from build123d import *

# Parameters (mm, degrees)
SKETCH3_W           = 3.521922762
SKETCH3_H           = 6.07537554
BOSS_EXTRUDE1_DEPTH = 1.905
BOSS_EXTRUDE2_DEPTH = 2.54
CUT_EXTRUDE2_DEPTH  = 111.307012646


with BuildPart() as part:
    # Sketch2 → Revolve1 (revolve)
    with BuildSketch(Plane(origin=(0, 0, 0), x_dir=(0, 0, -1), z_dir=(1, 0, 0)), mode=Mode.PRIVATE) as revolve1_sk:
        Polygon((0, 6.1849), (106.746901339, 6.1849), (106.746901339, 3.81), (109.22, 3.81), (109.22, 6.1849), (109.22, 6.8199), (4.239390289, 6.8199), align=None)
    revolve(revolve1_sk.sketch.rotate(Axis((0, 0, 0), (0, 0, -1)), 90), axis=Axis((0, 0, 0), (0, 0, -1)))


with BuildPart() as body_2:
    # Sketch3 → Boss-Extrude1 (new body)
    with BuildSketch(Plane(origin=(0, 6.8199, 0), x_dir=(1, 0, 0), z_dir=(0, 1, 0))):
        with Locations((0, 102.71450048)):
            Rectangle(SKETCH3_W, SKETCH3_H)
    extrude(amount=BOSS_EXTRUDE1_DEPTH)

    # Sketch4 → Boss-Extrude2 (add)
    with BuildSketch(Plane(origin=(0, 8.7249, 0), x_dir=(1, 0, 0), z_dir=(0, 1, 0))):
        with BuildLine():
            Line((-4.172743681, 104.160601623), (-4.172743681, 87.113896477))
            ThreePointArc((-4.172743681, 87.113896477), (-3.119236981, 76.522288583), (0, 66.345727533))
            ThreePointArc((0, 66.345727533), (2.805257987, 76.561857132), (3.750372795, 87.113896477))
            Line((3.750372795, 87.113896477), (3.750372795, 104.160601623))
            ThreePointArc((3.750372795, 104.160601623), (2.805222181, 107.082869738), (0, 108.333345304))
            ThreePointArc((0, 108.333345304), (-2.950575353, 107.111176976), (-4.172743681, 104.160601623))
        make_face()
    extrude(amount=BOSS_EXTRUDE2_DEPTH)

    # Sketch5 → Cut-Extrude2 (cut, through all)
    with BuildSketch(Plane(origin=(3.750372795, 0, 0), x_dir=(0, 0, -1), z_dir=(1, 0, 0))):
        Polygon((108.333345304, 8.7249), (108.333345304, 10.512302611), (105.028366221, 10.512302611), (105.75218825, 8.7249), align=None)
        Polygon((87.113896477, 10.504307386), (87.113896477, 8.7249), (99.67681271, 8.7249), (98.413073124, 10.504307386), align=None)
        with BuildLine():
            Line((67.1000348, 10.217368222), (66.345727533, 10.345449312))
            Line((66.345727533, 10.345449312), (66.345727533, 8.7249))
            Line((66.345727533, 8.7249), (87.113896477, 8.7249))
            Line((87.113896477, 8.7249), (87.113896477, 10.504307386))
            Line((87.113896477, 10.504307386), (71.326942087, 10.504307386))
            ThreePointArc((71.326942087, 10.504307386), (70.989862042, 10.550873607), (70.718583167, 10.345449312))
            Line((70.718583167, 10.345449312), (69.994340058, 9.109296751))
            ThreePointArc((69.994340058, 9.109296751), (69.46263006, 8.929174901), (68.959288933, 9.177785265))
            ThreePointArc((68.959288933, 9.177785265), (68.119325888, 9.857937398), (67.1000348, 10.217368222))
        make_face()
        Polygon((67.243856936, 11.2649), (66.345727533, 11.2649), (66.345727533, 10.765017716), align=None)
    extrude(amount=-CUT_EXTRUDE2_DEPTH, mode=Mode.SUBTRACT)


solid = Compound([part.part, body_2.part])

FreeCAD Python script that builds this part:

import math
import FreeCAD as App
import Part
import Sketcher
from FreeCAD import Vector
Q = App.Units.Quantity

doc = App.newDocument("Part")
body = doc.addObject("PartDesign::Body", "Body")

sketch1 = body.newObject("Sketcher::SketchObject", "Sketch")
sketch1.AttachmentSupport = (doc.getObject("YZ_Plane"), [""])
sketch1.MapMode = "FlatFace"
sketch1.addGeometry([
    Part.LineSegment(Vector(6.2, 0, 0), Vector(6.2, -106.7, 0)),
    Part.LineSegment(Vector(6.2, -106.7, 0), Vector(3.8, -106.7, 0)),
    Part.LineSegment(Vector(3.8, -106.7, 0), Vector(3.8, -109.2, 0)),
    Part.LineSegment(Vector(3.8, -109.2, 0), Vector(6.8, -109.2, 0)),
    Part.LineSegment(Vector(6.8, -109.2, 0), Vector(6.8, -4.2, 0)),
    Part.LineSegment(Vector(6.8, -4.2, 0), Vector(6.2, 0, 0)),
], False)
sketch1.addConstraint([
    Sketcher.Constraint("Coincident", 0, 2, 1, 1),
    Sketcher.Constraint("Coincident", 1, 2, 2, 1),
    Sketcher.Constraint("Coincident", 2, 2, 3, 1),
    Sketcher.Constraint("Coincident", 3, 2, 4, 1),
    Sketcher.Constraint("Coincident", 4, 2, 5, 1),
    Sketcher.Constraint("Coincident", 5, 2, 0, 1),
    Sketcher.Constraint("Vertical", 0),
    Sketcher.Constraint("Horizontal", 1),
    Sketcher.Constraint("Vertical", 2),
    Sketcher.Constraint("Horizontal", 3),
    Sketcher.Constraint("Vertical", 4),
    Sketcher.Constraint("PointOnObject", 5, 2, -1),
    Sketcher.Constraint("DistanceY", 2, 2, -1, 1, Q("4.3 in")),
    Sketcher.Constraint("DistanceX", -1, 1, 1, 2, Q("0.15 in")),
    Sketcher.Constraint("DistanceX", 1, 2, 1, 1, Q("0.0935 in")),
    Sketcher.Constraint("DistanceX", 3, 1, 3, 2, Q("0.1185 in")),
    Sketcher.Constraint("DistanceY", 0, 2, 0, 1, 106.746901),
    Sketcher.Constraint("DistanceY", 4, 1, 4, 2, 104.98061),
])
revolution = body.newObject("PartDesign::Revolution", "Revolution")
revolution.Profile = sketch1
revolution.ReferenceAxis = (sketch1, ["V_Axis"])
revolution.Angle = 360
body2 = doc.addObject("PartDesign::Body", "Body001")

sketch2 = body2.newObject("Sketcher::SketchObject", "Sketch001")
sketch2.AttachmentSupport = (doc.getObject("XZ_Plane001"), [""])
sketch2.MapMode = "FlatFace"
sketch2.AttachmentOffset = App.Placement(Vector(0, 0, -0.2685 * 25.4), App.Rotation())
sketch2.addGeometry([
    Part.LineSegment(Vector(-1.8, -105.8, 0), Vector(-1.8, -99.7, 0)),
    Part.LineSegment(Vector(-1.8, -99.7, 0), Vector(1.8, -99.7, 0)),
    Part.LineSegment(Vector(1.8, -99.7, 0), Vector(1.8, -105.8, 0)),
    Part.LineSegment(Vector(1.8, -105.8, 0), Vector(-1.8, -105.8, 0)),
], False)
sketch2.addConstraint([
    Sketcher.Constraint("Coincident", 0, 2, 1, 1),
    Sketcher.Constraint("Coincident", 1, 2, 2, 1),
    Sketcher.Constraint("Coincident", 2, 2, 3, 1),
    Sketcher.Constraint("Coincident", 3, 2, 0, 1),
    Sketcher.Constraint("Vertical", 0),
    Sketcher.Constraint("Horizontal", 1),
    Sketcher.Constraint("Vertical", 2),
    Sketcher.Constraint("Horizontal", 3),
    Sketcher.Constraint("DistanceX", 1, 1, 1, 2, 3.521923),
    Sketcher.Constraint("DistanceY", 0, 1, 0, 2, 6.075376),
    Sketcher.Constraint("DistanceX", 0, 2, -1, 1, 1.760961),
    Sketcher.Constraint("DistanceY", 2, 2, -1, 1, 105.752188),
])
pad1 = body2.newObject("PartDesign::Pad", "Pad")
pad1.Profile = sketch2
pad1.Length = Q("0.075 in")
pad1.Reversed = True

sketch3 = body2.newObject("Sketcher::SketchObject", "Sketch002")
sketch3.AttachmentSupport = (doc.getObject("XZ_Plane001"), [""])
sketch3.MapMode = "FlatFace"
sketch3.AttachmentOffset = App.Placement(Vector(0, 0, -0.3435 * 25.4), App.Rotation())
sketch3.addGeometry([
    Part.LineSegment(Vector(-4.2, -104.2, 0), Vector(-4.2, -87.1, 0)),
    Part.ArcOfCircle(Part.Circle(Vector(49.6, -87.1, 0), Vector(0, 0, 1), 53.8), math.radians(157), math.radians(180)),
    Part.ArcOfCircle(Part.Circle(Vector(-55.6, -87.1, 0), Vector(0, 0, 1), 59.4), math.radians(0), math.radians(20)),
    Part.LineSegment(Vector(3.8, -87.1, 0), Vector(3.8, -104.2, 0)),
    Part.ArcOfCircle(Part.Circle(Vector(0, -104.6, 0), Vector(0, 0, 1), 3.8), math.radians(-90), math.radians(6)),
    Part.ArcOfCircle(Part.Circle(Vector(0, -104.2, 0), Vector(0, 0, 1), 4.2), math.radians(180), math.radians(270)),
], False)
sketch3.addConstraint([
    Sketcher.Constraint("Tangent", 0, 2, 1, 2),
    Sketcher.Constraint("Coincident", 1, 1, 2, 2),
    Sketcher.Constraint("Tangent", 2, 1, 3, 1),
    Sketcher.Constraint("Coincident", 3, 2, 4, 2),
    Sketcher.Constraint("Tangent", 4, 1, 5, 2),
    Sketcher.Constraint("Tangent", 5, 1, 0, 1),
    Sketcher.Constraint("Vertical", 0),
    Sketcher.Constraint("Vertical", 3),
    Sketcher.Constraint("PointOnObject", 4, 3, -2),
    Sketcher.Constraint("PointOnObject", 5, 3, -2),
    Sketcher.Constraint("PointOnObject", 1, 1, -2),
    Sketcher.Constraint("Horizontal", 1, 3, 2, 3),
    Sketcher.Constraint("Horizontal", 5, 3, 3, 2),
    Sketcher.Constraint("Radius", 4, 3.771749),
    Sketcher.Constraint("Radius", 1, 53.769014),
    Sketcher.Constraint("Radius", 2, 59.378382),
    Sketcher.Constraint("DistanceY", 5, 3, -1, 1, 104.160602),
    Sketcher.Constraint("DistanceY", 4, 3, 1, 3, 17.4477),
])
pad2 = body2.newObject("PartDesign::Pad", "Pad001")
pad2.Profile = sketch3
pad2.Length = Q("0.1 in")
pad2.Reversed = True

sketch4 = body2.newObject("Sketcher::SketchObject", "Sketch003")
sketch4.AttachmentSupport = (doc.getObject("YZ_Plane001"), [""])
sketch4.MapMode = "FlatFace"
sketch4.AttachmentOffset = App.Placement(Vector(0, 0, 3.750373), App.Rotation())
sketch4.addGeometry([
    Part.LineSegment(Vector(8.72, -108.33, 0), Vector(10.51, -108.33, 0)),
    Part.LineSegment(Vector(10.51, -108.33, 0), Vector(10.51, -105.03, 0)),
    Part.LineSegment(Vector(10.51, -105.03, 0), Vector(8.72, -105.75, 0)),
    Part.LineSegment(Vector(8.72, -105.75, 0), Vector(8.72, -108.33, 0)),
    Part.LineSegment(Vector(8.72, -99.68, 0), Vector(10.5, -98.41, 0)),
    Part.LineSegment(Vector(10.5, -98.41, 0), Vector(10.5, -71.33, 0)),
    Part.ArcOfCircle(Part.Circle(Vector(10.12, -71.1, 0), Vector(0, 0, 1), 0.44), math.radians(-30), math.radians(60)),
    Part.LineSegment(Vector(10.35, -70.72, 0), Vector(9.11, -69.99, 0)),
    Part.ArcOfCircle(Part.Circle(Vector(9.66, -69.51, 0), Vector(0, 0, 1), 0.73), math.radians(131), math.radians(221)),
    Part.ArcOfCircle(Part.Circle(Vector(7.08, -66.57, 0), Vector(0, 0, 1), 3.18), math.radians(-49), math.radians(-10)),
    Part.LineSegment(Vector(10.22, -67.1, 0), Vector(10.35, -66.35, 0)),
    Part.LineSegment(Vector(10.35, -66.35, 0), Vector(8.72, -66.35, 0)),
    Part.LineSegment(Vector(8.72, -66.35, 0), Vector(8.72, -99.68, 0)),
    Part.LineSegment(Vector(11.26, -67.24, 0), Vector(11.26, -66.35, 0)),
    Part.LineSegment(Vector(11.26, -66.35, 0), Vector(10.77, -66.35, 0)),
    Part.LineSegment(Vector(10.77, -66.35, 0), Vector(11.26, -67.24, 0)),
], False)
sketch4.addConstraint([
    Sketcher.Constraint("Coincident", 0, 2, 1, 1),
    Sketcher.Constraint("Coincident", 1, 2, 2, 1),
    Sketcher.Constraint("Coincident", 2, 2, 3, 1),
    Sketcher.Constraint("Coincident", 3, 2, 0, 1),
    Sketcher.Constraint("Coincident", 4, 2, 5, 1),
    Sketcher.Constraint("Coincident", 5, 2, 6, 1),
    Sketcher.Constraint("Tangent", 6, 2, 7, 1),
    Sketcher.Constraint("Coincident", 7, 2, 8, 2),
    Sketcher.Constraint("Tangent", 8, 1, 9, 1),
    Sketcher.Constraint("Tangent", 9, 2, 10, 1),
    Sketcher.Constraint("Coincident", 10, 2, 11, 1),
    Sketcher.Constraint("Coincident", 11, 2, 12, 1),
    Sketcher.Constraint("Coincident", 12, 2, 4, 1),
    Sketcher.Constraint("Coincident", 13, 2, 14, 1),
    Sketcher.Constraint("Coincident", 14, 2, 15, 1),
    Sketcher.Constraint("Coincident", 15, 2, 13, 1),
    Sketcher.Constraint("Horizontal", 0),
    Sketcher.Constraint("Vertical", 1),
    Sketcher.Constraint("Vertical", 3),
    Sketcher.Constraint("Vertical", 5),
    Sketcher.Constraint("Horizontal", 11),
    Sketcher.Constraint("Vertical", 12),
    Sketcher.Constraint("Vertical", 13),
    Sketcher.Constraint("Horizontal", 14),
    Sketcher.Constraint("Horizontal", 11, 2, 13, 2),
    Sketcher.Constraint("Vertical", 6, 2, 10, 2),
    Sketcher.Constraint("Vertical", 3, 2, 11, 2),
    Sketcher.Constraint("DistanceX", 11, 2, 13, 2, Q("0.1 in")),
    Sketcher.Constraint("Radius", 6, 0.444599),
    Sketcher.Constraint("DistanceX", -1, 1, 2, 2, Q("0.3435 in")),
    Sketcher.Constraint("Radius", 8, 0.733492),
    Sketcher.Constraint("Radius", 9, 3.179044),
    Sketcher.Constraint("Distance", 2, 1.9284),
    Sketcher.Constraint("DistanceX", 11, 2, 11, 1, 1.620549),
    Sketcher.Constraint("DistanceY", 1, 1, 1, 2, 3.304979),
    Sketcher.Constraint("DistanceY", 5, 1, 5, 2, 27.086131),
    Sketcher.Constraint("DistanceY", 13, 1, 13, 2, 0.898129),
    Sketcher.Constraint("DistanceX", -1, 1, 6, 3, 10.120699),
    Sketcher.Constraint("DistanceX", 8, 3, 9, 2, 0.556302),
    Sketcher.Constraint("Distance", 7, 1.43269),
    Sketcher.Constraint("Distance", 15, 1.027871),
    Sketcher.Constraint("DistanceX", 0, 1, 0, 2, 1.787403),
    Sketcher.Constraint("DistanceY", 12, 2, 12, 1, 33.331085),
    Sketcher.Constraint("DistanceY", 6, 3, -1, 1, 71.102192),
    Sketcher.Constraint("DistanceY", 8, 3, -1, 1, 69.511059),
    Sketcher.Constraint("DistanceY", 9, 3, -1, 1, 66.567852),
    Sketcher.Constraint("DistanceY", 2, 2, -1, 1, 105.752188),
    Sketcher.Constraint("DistanceX", 6, 3, 4, 2, 0.383608),
])
pocket1 = body2.newObject("PartDesign::Pocket", "Pocket")
pocket1.Profile = sketch4
pocket1.Type = "ThroughAll"

doc.recompute()
